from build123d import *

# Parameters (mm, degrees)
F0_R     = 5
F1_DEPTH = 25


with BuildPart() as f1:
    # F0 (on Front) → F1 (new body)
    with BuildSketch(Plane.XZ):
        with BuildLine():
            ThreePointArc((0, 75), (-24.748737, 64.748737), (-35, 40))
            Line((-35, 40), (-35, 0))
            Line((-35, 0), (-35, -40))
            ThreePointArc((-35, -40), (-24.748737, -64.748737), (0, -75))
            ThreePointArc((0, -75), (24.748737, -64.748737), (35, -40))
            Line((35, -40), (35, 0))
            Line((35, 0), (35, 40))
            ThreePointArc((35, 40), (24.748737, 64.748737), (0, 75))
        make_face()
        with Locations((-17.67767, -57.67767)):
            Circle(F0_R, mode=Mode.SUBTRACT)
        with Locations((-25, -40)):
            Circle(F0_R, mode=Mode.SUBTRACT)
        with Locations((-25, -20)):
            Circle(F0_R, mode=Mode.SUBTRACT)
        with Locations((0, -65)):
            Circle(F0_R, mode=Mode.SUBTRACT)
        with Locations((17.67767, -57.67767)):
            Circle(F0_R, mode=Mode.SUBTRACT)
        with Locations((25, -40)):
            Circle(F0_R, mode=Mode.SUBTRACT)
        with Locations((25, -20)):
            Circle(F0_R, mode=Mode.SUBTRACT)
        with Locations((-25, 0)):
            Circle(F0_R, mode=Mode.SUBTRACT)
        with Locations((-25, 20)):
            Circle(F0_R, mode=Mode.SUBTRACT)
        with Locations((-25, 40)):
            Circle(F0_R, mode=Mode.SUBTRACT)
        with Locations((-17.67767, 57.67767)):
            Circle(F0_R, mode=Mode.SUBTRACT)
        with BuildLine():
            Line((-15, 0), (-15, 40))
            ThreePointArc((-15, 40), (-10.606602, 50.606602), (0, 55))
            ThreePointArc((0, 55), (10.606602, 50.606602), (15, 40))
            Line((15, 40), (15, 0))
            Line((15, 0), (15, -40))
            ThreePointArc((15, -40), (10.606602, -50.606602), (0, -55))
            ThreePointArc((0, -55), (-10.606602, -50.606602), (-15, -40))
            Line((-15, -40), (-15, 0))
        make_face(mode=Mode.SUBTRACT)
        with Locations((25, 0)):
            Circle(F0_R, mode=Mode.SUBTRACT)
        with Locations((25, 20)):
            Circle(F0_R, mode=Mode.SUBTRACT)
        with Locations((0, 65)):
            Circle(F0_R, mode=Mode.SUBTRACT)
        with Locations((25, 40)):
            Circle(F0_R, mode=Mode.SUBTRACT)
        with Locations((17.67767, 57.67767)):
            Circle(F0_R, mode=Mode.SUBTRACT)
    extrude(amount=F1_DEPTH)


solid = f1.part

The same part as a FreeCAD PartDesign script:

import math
import FreeCAD as App
import Part
import Sketcher

doc = App.newDocument("Part")
body = doc.addObject("PartDesign::Body", "Body")

sketch1 = doc.addObject("Sketcher::SketchObject", "Sketch")
body.addObject(sketch1)
sketch1.AttachmentSupport = (doc.XZ_Plane, [""])
sketch1.MapMode = "FlatFace"
sketch1.addGeometry(Part.ArcOfCircle(Part.Circle(App.Vector(0, 40, 0), App.Vector(0, 0, 1), 35), math.radians(90), math.radians(180)), False)
sketch1.addGeometry(Part.LineSegment(App.Vector(-35, 40, 0), App.Vector(-35, -40, 0)), False)
sketch1.addGeometry(Part.ArcOfCircle(Part.Circle(App.Vector(0, -40, 0), App.Vector(0, 0, 1), 35), math.radians(-180), math.radians(-90)), False)
sketch1.addGeometry(Part.ArcOfCircle(Part.Circle(App.Vector(0, -40, 0), App.Vector(0, 0, 1), 35), math.radians(-90), math.radians(0)), False)
sketch1.addGeometry(Part.LineSegment(App.Vector(35, -40, 0), App.Vector(35, 40, 0)), False)
sketch1.addGeometry(Part.ArcOfCircle(Part.Circle(App.Vector(0, 40, 0), App.Vector(0, 0, 1), 35), math.radians(0), math.radians(90)), False)
sketch1.addGeometry(Part.Circle(App.Vector(-18, -58, 0), App.Vector(0, 0, 1), 5), False)
sketch1.addGeometry(Part.Circle(App.Vector(-25, -40, 0), App.Vector(0, 0, 1), 5), False)
sketch1.addGeometry(Part.Circle(App.Vector(-25, -20, 0), App.Vector(0, 0, 1), 5), False)
sketch1.addGeometry(Part.Circle(App.Vector(0, -65, 0), App.Vector(0, 0, 1), 5), False)
sketch1.addGeometry(Part.Circle(App.Vector(18, -58, 0), App.Vector(0, 0, 1), 5), False)
sketch1.addGeometry(Part.Circle(App.Vector(25, -40, 0), App.Vector(0, 0, 1), 5), False)
sketch1.addGeometry(Part.Circle(App.Vector(25, -20, 0), App.Vector(0, 0, 1), 5), False)
sketch1.addGeometry(Part.Circle(App.Vector(-25, 0, 0), App.Vector(0, 0, 1), 5), False)
sketch1.addGeometry(Part.Circle(App.Vector(-25, 20, 0), App.Vector(0, 0, 1), 5), False)
sketch1.addGeometry(Part.Circle(App.Vector(-25, 40, 0), App.Vector(0, 0, 1), 5), False)
sketch1.addGeometry(Part.Circle(App.Vector(-18, 58, 0), App.Vector(0, 0, 1), 5), False)
sketch1.addGeometry(Part.LineSegment(App.Vector(-15, -40, 0), App.Vector(-15, 40, 0)), False)
sketch1.addGeometry(Part.ArcOfCircle(Part.Circle(App.Vector(0, 40, 0), App.Vector(0, 0, 1), 15), math.radians(90), math.radians(180)), False)
sketch1.addGeometry(Part.ArcOfCircle(Part.Circle(App.Vector(0, 40, 0), App.Vector(0, 0, 1), 15), math.radians(0), math.radians(90)), False)
sketch1.addGeometry(Part.LineSegment(App.Vector(15, 40, 0), App.Vector(15, -40, 0)), False)
sketch1.addGeometry(Part.ArcOfCircle(Part.Circle(App.Vector(0, -40, 0), App.Vector(0, 0, 1), 15), math.radians(-90), math.radians(0)), False)
sketch1.addGeometry(Part.ArcOfCircle(Part.Circle(App.Vector(0, -40, 0), App.Vector(0, 0, 1), 15), math.radians(180), math.radians(270)), False)
sketch1.addGeometry(Part.Circle(App.Vector(25, 0, 0), App.Vector(0, 0, 1), 5), False)
sketch1.addGeometry(Part.Circle(App.Vector(25, 20, 0), App.Vector(0, 0, 1), 5), False)
sketch1.addGeometry(Part.Circle(App.Vector(0, 65, 0), App.Vector(0, 0, 1), 5), False)
sketch1.addGeometry(Part.Circle(App.Vector(25, 40, 0), App.Vector(0, 0, 1), 5), False)
sketch1.addGeometry(Part.Circle(App.Vector(18, 58, 0), App.Vector(0, 0, 1), 5), False)
sketch1.addConstraint(Sketcher.Constraint("Tangent", 0, 2, 1, 1))
sketch1.addConstraint(Sketcher.Constraint("Tangent", 1, 2, 2, 1))
sketch1.addConstraint(Sketcher.Constraint("Tangent", 2, 2, 3, 1))
sketch1.addConstraint(Sketcher.Constraint("Tangent", 3, 2, 4, 1))
sketch1.addConstraint(Sketcher.Constraint("Tangent", 4, 2, 5, 1))
sketch1.addConstraint(Sketcher.Constraint("Tangent", 5, 2, 0, 1))
sketch1.addConstraint(Sketcher.Constraint("Tangent", 17, 2, 18, 2))
sketch1.addConstraint(Sketcher.Constraint("Tangent", 18, 1, 19, 2))
sketch1.addConstraint(Sketcher.Constraint("Tangent", 19, 1, 20, 1))
sketch1.addConstraint(Sketcher.Constraint("Tangent", 20, 2, 21, 2))
sketch1.addConstraint(Sketcher.Constraint("Tangent", 21, 1, 22, 2))
sketch1.addConstraint(Sketcher.Constraint("Tangent", 22, 1, 17, 1))
sketch1.addConstraint(Sketcher.Constraint("Vertical", 1))
sketch1.addConstraint(Sketcher.Constraint("Vertical", 4))
sketch1.addConstraint(Sketcher.Constraint("Vertical", 17))
sketch1.addConstraint(Sketcher.Constraint("Vertical", 20))
sketch1.addConstraint(Sketcher.Constraint("Coincident", 18, 3, 0, 3))
sketch1.addConstraint(Sketcher.Constraint("Coincident", 21, 3, 2, 3))
sketch1.addConstraint(Sketcher.Constraint("Equal", 0, 2))
sketch1.addConstraint(Sketcher.Constraint("Equal", 2, 3))
sketch1.addConstraint(Sketcher.Constraint("Equal", 6, 7))
sketch1.addConstraint(Sketcher.Constraint("Equal", 7, 8))
sketch1.addConstraint(Sketcher.Constraint("Equal", 8, 9))
sketch1.addConstraint(Sketcher.Constraint("Equal", 9, 10))
sketch1.addConstraint(Sketcher.Constraint("Equal", 10, 11))
sketch1.addConstraint(Sketcher.Constraint("Equal", 11, 12))
sketch1.addConstraint(Sketcher.Constraint("Equal", 12, 13))
sketch1.addConstraint(Sketcher.Constraint("Equal", 13, 14))
sketch1.addConstraint(Sketcher.Constraint("Equal", 14, 15))
sketch1.addConstraint(Sketcher.Constraint("Equal", 15, 16))
sketch1.addConstraint(Sketcher.Constraint("Equal", 18, 19))
sketch1.addConstraint(Sketcher.Constraint("Equal", 16, 23))
sketch1.addConstraint(Sketcher.Constraint("Equal", 23, 24))
sketch1.addConstraint(Sketcher.Constraint("Equal", 24, 25))
sketch1.addConstraint(Sketcher.Constraint("Equal", 25, 26))
sketch1.addConstraint(Sketcher.Constraint("Equal", 26, 27))
sketch1.addConstraint(Sketcher.Constraint("Symmetric", 0, 3, 2, 3, -1, 1))
sketch1.addConstraint(Sketcher.Constraint("Symmetric", 12, 3, 14, 3, -1, 1))
sketch1.addConstraint(Sketcher.Constraint("Symmetric", 11, 3, 15, 3, -1, 1))
sketch1.addConstraint(Sketcher.Constraint("Symmetric", 10, 3, 16, 3, -1, 1))
sketch1.addConstraint(Sketcher.Constraint("Symmetric", 13, 3, 23, 3, -1, 1))
sketch1.addConstraint(Sketcher.Constraint("Symmetric", 8, 3, 24, 3, -1, 1))
sketch1.addConstraint(Sketcher.Constraint("Symmetric", 9, 3, 25, 3, -1, 1))
sketch1.addConstraint(Sketcher.Constraint("Symmetric", 7, 3, 26, 3, -1, 1))
sketch1.addConstraint(Sketcher.Constraint("Symmetric", 6, 3, 27, 3, -1, 1))
sketch1.addConstraint(Sketcher.Constraint("Symmetric", 6, 3, 10, 3, -2))
sketch1.addConstraint(Sketcher.Constraint("Symmetric", 7, 3, 11, 3, -2))
sketch1.addConstraint(Sketcher.Constraint("Symmetric", 8, 3, 12, 3, -2))
sketch1.addConstraint(Sketcher.Constraint("PointOnObject", 9, 3, -2))
sketch1.addConstraint(Sketcher.Constraint("PointOnObject", 13, 3, -1))
sketch1.addConstraint(Sketcher.Constraint("PointOnObject", 2, 2, -2))
sketch1.addConstraint(Sketcher.Constraint("PointOnObject", 5, 2, -2))
sketch1.addConstraint(Sketcher.Constraint("PointOnObject", 18, 1, -2))
sketch1.addConstraint(Sketcher.Constraint("PointOnObject", 21, 1, -2))
sketch1.addConstraint(Sketcher.Constraint("Horizontal", 3, 3, 7, 3))
sketch1.addConstraint(Sketcher.Constraint("Vertical", 7, 3, 8, 3))
sketch1.addConstraint(Sketcher.Constraint("Vertical", 8, 3, 13, 3))
sketch1.addConstraint(Sketcher.Constraint("Diameter", 6, 10.0))
sketch1.addConstraint(Sketcher.Constraint("Radius", 0, 35.000001))
sketch1.addConstraint(Sketcher.Constraint("Radius", 18, 14.999999))
sketch1.addConstraint(Sketcher.Constraint("DistanceY", 1, 2, 1, 1, 80.0))
sketch1.addConstraint(Sketcher.Constraint("DistanceX", 7, 3, -1, 1, 25.0))
sketch1.addConstraint(Sketcher.Constraint("DistanceY", 8, 3, -1, 1, 20.0))
sketch1.addConstraint(Sketcher.Constraint("DistanceY", 9, 3, -1, 1, 65.0))
sketch1.addConstraint(Sketcher.Constraint("DistanceX", 6, 3, -1, 1, 17.67767))
sketch1.addConstraint(Sketcher.Constraint("DistanceY", 6, 3, -1, 1, 57.67767))
pad1 = doc.addObject("PartDesign::Pad", "Pad")
body.addObject(pad1)
pad1.Profile = sketch1
pad1.Length = 25

doc.recompute()
